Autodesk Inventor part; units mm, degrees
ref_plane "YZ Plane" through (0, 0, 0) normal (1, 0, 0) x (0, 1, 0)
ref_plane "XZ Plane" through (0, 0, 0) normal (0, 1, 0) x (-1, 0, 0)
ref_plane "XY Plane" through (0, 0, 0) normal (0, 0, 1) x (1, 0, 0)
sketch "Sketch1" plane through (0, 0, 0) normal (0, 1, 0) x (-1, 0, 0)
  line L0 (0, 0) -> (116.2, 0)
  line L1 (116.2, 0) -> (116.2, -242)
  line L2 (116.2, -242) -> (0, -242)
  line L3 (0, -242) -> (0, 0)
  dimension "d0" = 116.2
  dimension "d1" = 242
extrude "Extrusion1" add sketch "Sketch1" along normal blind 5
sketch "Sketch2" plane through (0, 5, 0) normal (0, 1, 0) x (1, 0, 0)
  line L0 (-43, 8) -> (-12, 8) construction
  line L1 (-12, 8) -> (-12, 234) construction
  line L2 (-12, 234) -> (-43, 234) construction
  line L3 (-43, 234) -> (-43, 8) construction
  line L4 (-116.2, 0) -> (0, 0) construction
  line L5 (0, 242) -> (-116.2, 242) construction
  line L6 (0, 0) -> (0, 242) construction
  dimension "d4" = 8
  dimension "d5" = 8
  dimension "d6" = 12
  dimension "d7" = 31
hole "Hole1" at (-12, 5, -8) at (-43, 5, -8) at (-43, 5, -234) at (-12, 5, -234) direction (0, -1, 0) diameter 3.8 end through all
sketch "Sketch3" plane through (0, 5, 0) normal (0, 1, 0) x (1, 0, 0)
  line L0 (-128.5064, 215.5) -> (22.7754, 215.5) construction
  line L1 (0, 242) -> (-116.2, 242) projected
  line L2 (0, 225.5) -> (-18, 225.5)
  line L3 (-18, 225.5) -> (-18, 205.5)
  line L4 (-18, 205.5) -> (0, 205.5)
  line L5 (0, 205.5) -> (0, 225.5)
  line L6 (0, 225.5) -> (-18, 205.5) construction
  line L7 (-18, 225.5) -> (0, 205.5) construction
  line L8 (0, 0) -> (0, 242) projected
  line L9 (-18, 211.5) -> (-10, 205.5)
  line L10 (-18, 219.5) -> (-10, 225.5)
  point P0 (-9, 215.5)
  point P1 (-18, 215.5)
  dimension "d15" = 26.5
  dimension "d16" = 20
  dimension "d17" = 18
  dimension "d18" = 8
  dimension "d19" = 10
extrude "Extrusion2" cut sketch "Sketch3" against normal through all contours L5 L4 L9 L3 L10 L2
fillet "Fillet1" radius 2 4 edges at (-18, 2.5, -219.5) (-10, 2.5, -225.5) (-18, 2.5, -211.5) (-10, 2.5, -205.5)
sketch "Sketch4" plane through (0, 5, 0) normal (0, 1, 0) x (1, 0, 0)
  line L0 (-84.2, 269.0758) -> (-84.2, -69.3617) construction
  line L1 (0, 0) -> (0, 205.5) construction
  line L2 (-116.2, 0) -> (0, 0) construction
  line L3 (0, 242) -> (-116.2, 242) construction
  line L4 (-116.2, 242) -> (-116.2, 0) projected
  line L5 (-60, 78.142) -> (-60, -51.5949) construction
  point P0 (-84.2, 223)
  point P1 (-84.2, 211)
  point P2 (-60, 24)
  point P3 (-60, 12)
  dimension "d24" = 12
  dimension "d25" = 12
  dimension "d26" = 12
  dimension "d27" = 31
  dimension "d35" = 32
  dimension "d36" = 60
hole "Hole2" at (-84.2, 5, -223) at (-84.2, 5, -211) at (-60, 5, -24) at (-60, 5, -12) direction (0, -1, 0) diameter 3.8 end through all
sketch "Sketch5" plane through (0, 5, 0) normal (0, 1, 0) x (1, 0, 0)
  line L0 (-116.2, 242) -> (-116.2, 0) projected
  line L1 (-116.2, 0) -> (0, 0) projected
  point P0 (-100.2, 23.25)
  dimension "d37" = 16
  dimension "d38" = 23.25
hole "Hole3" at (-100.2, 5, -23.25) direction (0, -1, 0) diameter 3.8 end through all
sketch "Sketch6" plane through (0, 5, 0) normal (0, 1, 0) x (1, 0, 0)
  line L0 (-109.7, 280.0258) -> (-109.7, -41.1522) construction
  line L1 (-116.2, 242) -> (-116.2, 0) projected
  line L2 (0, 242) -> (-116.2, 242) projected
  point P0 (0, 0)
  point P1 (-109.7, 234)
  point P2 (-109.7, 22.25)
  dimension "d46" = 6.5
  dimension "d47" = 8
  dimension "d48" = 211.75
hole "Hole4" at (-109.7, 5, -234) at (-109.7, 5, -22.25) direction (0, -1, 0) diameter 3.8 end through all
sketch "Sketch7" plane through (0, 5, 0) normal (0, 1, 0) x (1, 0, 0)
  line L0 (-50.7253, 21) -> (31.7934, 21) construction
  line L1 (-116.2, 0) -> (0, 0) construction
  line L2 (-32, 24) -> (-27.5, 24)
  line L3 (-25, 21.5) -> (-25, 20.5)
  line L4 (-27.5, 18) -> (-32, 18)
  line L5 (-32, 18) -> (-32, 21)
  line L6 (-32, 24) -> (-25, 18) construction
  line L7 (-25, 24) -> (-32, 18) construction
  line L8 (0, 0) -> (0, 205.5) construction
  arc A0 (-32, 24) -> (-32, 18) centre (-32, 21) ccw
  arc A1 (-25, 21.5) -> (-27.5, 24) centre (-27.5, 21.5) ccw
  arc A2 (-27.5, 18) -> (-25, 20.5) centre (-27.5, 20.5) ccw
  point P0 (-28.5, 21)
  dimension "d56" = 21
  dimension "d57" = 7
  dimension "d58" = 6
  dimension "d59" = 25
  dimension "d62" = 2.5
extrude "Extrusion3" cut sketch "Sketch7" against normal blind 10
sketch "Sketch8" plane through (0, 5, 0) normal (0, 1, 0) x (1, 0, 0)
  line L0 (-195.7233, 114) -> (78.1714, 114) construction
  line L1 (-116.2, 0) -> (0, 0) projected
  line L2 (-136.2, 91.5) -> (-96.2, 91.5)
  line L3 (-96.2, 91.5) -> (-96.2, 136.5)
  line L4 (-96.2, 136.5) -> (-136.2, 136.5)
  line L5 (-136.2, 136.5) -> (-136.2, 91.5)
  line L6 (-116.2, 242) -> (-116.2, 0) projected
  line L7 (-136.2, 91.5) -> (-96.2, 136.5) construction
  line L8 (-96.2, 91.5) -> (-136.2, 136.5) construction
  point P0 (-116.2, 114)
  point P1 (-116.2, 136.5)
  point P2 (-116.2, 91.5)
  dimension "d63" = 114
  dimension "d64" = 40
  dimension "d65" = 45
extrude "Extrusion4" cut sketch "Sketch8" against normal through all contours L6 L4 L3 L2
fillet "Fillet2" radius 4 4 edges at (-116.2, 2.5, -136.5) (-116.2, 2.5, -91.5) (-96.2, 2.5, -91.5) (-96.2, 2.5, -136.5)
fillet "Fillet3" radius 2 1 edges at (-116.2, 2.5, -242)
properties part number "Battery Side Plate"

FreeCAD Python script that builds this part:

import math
import FreeCAD as App
import Part
import Sketcher

V = App.Vector
Q = App.Units.Quantity


def edges_at(feature, points):
    """Names of the edges that pass closest to the given points."""
    edges = feature.Shape.Edges
    near = lambda p: min(range(len(edges)), key=lambda i: edges[i].distToShape(Part.Vertex(*p))[0])
    return sorted({f"Edge{near(p) + 1}" for p in points})

doc = App.newDocument("Part")
body = doc.addObject("PartDesign::Body", "Body")

# Sketch on XZ plane
sketch1 = doc.addObject("Sketcher::SketchObject", "Sketch")
body.addObject(sketch1)
sketch1.AttachmentSupport = (doc.XZ_Plane, [""])
sketch1.MapMode = "FlatFace"
sketch1.addGeometry(Part.LineSegment(V(-116, 0, 0), V(0, 0, 0)), False)
sketch1.addGeometry(Part.LineSegment(V(0, 0, 0), V(0, -242, 0)), False)
sketch1.addGeometry(Part.LineSegment(V(0, -242, 0), V(-116, -242, 0)), False)
sketch1.addGeometry(Part.LineSegment(V(-116, -242, 0), V(-116, 0, 0)), False)
sketch1.addConstraint(Sketcher.Constraint("Coincident", 0, 2, 1, 1))
sketch1.addConstraint(Sketcher.Constraint("Coincident", 1, 2, 2, 1))
sketch1.addConstraint(Sketcher.Constraint("Coincident", 2, 2, 3, 1))
sketch1.addConstraint(Sketcher.Constraint("Coincident", 3, 2, 0, 1))
sketch1.addConstraint(Sketcher.Constraint("Horizontal", 0))
sketch1.addConstraint(Sketcher.Constraint("Vertical", 1))
sketch1.addConstraint(Sketcher.Constraint("Horizontal", 2))
sketch1.addConstraint(Sketcher.Constraint("Vertical", 3))
sketch1.addConstraint(Sketcher.Constraint("Coincident", 0, 2, -1, 1))
sketch1.addConstraint(Sketcher.Constraint("DistanceY", 1, 2, 1, 1, Q("242 mm")))
sketch1.addConstraint(Sketcher.Constraint("DistanceX", 0, 1, 0, 2, Q("116.2 mm")))
pad1 = doc.addObject("PartDesign::Pad", "Pad")
body.addObject(pad1)
pad1.Profile = sketch1
pad1.Length = 5
pad1.Reversed = True

# Sketch on XZ plane
sketch2 = doc.addObject("Sketcher::SketchObject", "Sketch001")
body.addObject(sketch2)
sketch2.AttachmentSupport = (doc.XZ_Plane, [""])
sketch2.MapMode = "FlatFace"
sketch2.AttachmentOffset = App.Placement(V(0, 0, -5), App.Rotation())
sketch2.addGeometry(Part.Circle(V(-12, -8, 0), V(0, 0, 1), 1.9), False)
sketch2.addGeometry(Part.Circle(V(-43, -8, 0), V(0, 0, 1), 1.9), False)
sketch2.addGeometry(Part.Circle(V(-43, -234, 0), V(0, 0, 1), 1.9), False)
sketch2.addGeometry(Part.Circle(V(-12, -234, 0), V(0, 0, 1), 1.9), False)
sketch2.addConstraint(Sketcher.Constraint("Equal", 0, 1))
sketch2.addConstraint(Sketcher.Constraint("Equal", 1, 2))
sketch2.addConstraint(Sketcher.Constraint("Equal", 2, 3))
sketch2.addConstraint(Sketcher.Constraint("Horizontal", 0, 3, 1, 3))
sketch2.addConstraint(Sketcher.Constraint("Horizontal", 2, 3, 3, 3))
sketch2.addConstraint(Sketcher.Constraint("Vertical", 1, 3, 2, 3))
sketch2.addConstraint(Sketcher.Constraint("Vertical", 0, 3, 3, 3))
sketch2.addConstraint(Sketcher.Constraint("Diameter", 0, Q("3.8 mm")))
sketch2.addConstraint(Sketcher.Constraint("DistanceX", 0, 3, -1, 1, Q("12 mm")))
sketch2.addConstraint(Sketcher.Constraint("DistanceY", 0, 3, -1, 1, Q("8 mm")))
sketch2.addConstraint(Sketcher.Constraint("DistanceX", 1, 3, -1, 1, Q("43 mm")))
sketch2.addConstraint(Sketcher.Constraint("DistanceY", 2, 3, -1, 1, Q("234 mm")))
doc.recompute()
hole = doc.addObject("PartDesign::Hole", "Hole")
body.addObject(hole)
hole.Profile = sketch2
hole.ThreadType = "None"
hole.Diameter = 3.8
hole.DepthType = "ThroughAll"
hole.Reversed = True

# Sketch on XZ plane
sketch3 = doc.addObject("Sketcher::SketchObject", "Sketch002")
body.addObject(sketch3)
sketch3.AttachmentSupport = (doc.XZ_Plane, [""])
sketch3.MapMode = "FlatFace"
sketch3.AttachmentOffset = App.Placement(V(0, 0, -5), App.Rotation())
sketch3.addGeometry(Part.LineSegment(V(0, -206, 0), V(0, -226, 0)), False)
sketch3.addGeometry(Part.LineSegment(V(0, -226, 0), V(-10, -226, 0)), False)
sketch3.addGeometry(Part.LineSegment(V(-10, -226, 0), V(-18, -220, 0)), False)
sketch3.addGeometry(Part.LineSegment(V(-18, -220, 0), V(-18, -212, 0)), False)
sketch3.addGeometry(Part.LineSegment(V(-18, -212, 0), V(-10, -206, 0)), False)
sketch3.addGeometry(Part.LineSegment(V(-10, -206, 0), V(0, -206, 0)), False)
sketch3.addConstraint(Sketcher.Constraint("Coincident", 0, 2, 1, 1))
sketch3.addConstraint(Sketcher.Constraint("Coincident", 1, 2, 2, 1))
sketch3.addConstraint(Sketcher.Constraint("Coincident", 2, 2, 3, 1))
sketch3.addConstraint(Sketcher.Constraint("Coincident", 3, 2, 4, 1))
sketch3.addConstraint(Sketcher.Constraint("Coincident", 4, 2, 5, 1))
sketch3.addConstraint(Sketcher.Constraint("Coincident", 5, 2, 0, 1))
sketch3.addConstraint(Sketcher.Constraint("Vertical", 0))
sketch3.addConstraint(Sketcher.Constraint("Horizontal", 1))
sketch3.addConstraint(Sketcher.Constraint("Vertical", 3))
sketch3.addConstraint(Sketcher.Constraint("Horizontal", 5))
sketch3.addConstraint(Sketcher.Constraint("PointOnObject", 0, 2, -2))
sketch3.addConstraint(Sketcher.Constraint("Vertical", 1, 2, 4, 2))
sketch3.addConstraint(Sketcher.Constraint("Equal", 2, 4))
sketch3.addConstraint(Sketcher.Constraint("DistanceX", 1, 2, 1, 1, Q("10 mm")))
sketch3.addConstraint(Sketcher.Constraint("DistanceY", 0, 2, 0, 1, Q("20 mm")))
sketch3.addConstraint(Sketcher.Constraint("DistanceY", 3, 1, 3, 2, Q("8 mm")))
sketch3.addConstraint(Sketcher.Constraint("Distance", 2, Q("10 mm")))
sketch3.addConstraint(Sketcher.Constraint("DistanceY", 0, 2, -1, 1, Q("225.5 mm")))
pocket1 = doc.addObject("PartDesign::Pocket", "Pocket")
body.addObject(pocket1)
pocket1.Profile = sketch3
pocket1.Type = "ThroughAll"
pocket1.Reversed = True
doc.recompute()

fillet = doc.addObject("PartDesign::Fillet", "Fillet")
body.addObject(fillet)
fillet.Base = (pocket1, edges_at(pocket1, [
    (-18, 2.5, -219.5),
    (-10, 2.5, -225.5),
    (-18, 2.5, -211.5),
    (-10, 2.5, -205.5),
]))
fillet.Radius = 2

# Sketch on XZ plane
sketch4 = doc.addObject("Sketcher::SketchObject", "Sketch003")
body.addObject(sketch4)
sketch4.AttachmentSupport = (doc.XZ_Plane, [""])
sketch4.MapMode = "FlatFace"
sketch4.AttachmentOffset = App.Placement(V(0, 0, -5), App.Rotation())
sketch4.addGeometry(Part.Circle(V(-84.2, -223, 0), V(0, 0, 1), 1.9), False)
sketch4.addGeometry(Part.Circle(V(-84.2, -211, 0), V(0, 0, 1), 1.9), False)
sketch4.addGeometry(Part.Circle(V(-60, -24, 0), V(0, 0, 1), 1.9), False)
sketch4.addGeometry(Part.Circle(V(-60, -12, 0), V(0, 0, 1), 1.9), False)
sketch4.addConstraint(Sketcher.Constraint("Equal", 0, 1))
sketch4.addConstraint(Sketcher.Constraint("Equal", 1, 2))
sketch4.addConstraint(Sketcher.Constraint("Equal", 2, 3))
sketch4.addConstraint(Sketcher.Constraint("Vertical", 0, 3, 1, 3))
sketch4.addConstraint(Sketcher.Constraint("Vertical", 2, 3, 3, 3))
sketch4.addConstraint(Sketcher.Constraint("Diameter", 0, Q("3.8 mm")))
sketch4.addConstraint(Sketcher.Constraint("DistanceY", 0, 3, -1, 1, Q("223 mm")))
sketch4.addConstraint(Sketcher.Constraint("DistanceY", 1, 3, -1, 1, Q("211 mm")))
sketch4.addConstraint(Sketcher.Constraint("DistanceX", 2, 3, -1, 1, Q("60 mm")))
sketch4.addConstraint(Sketcher.Constraint("DistanceY", 2, 3, -1, 1, Q("24 mm")))
sketch4.addConstraint(Sketcher.Constraint("DistanceY", 3, 3, -1, 1, Q("12 mm")))
sketch4.addConstraint(Sketcher.Constraint("DistanceX", 0, 3, -1, 1, Q("84.2 mm")))
doc.recompute()
hole2 = doc.addObject("PartDesign::Hole", "Hole001")
body.addObject(hole2)
hole2.Profile = sketch4
hole2.ThreadType = "None"
hole2.Diameter = 3.8
hole2.DepthType = "ThroughAll"
hole2.Reversed = True

# Sketch on XZ plane
sketch5 = doc.addObject("Sketcher::SketchObject", "Sketch004")
body.addObject(sketch5)
sketch5.AttachmentSupport = (doc.XZ_Plane, [""])
sketch5.MapMode = "FlatFace"
sketch5.AttachmentOffset = App.Placement(V(0, 0, -5), App.Rotation())
sketch5.addGeometry(Part.Circle(V(-100.2, -23.2, 0), V(0, 0, 1), 1.9), False)
sketch5.addConstraint(Sketcher.Constraint("Diameter", 0, Q("3.8 mm")))
sketch5.addConstraint(Sketcher.Constraint("DistanceX", 0, 3, -1, 1, Q("100.2 mm")))
sketch5.addConstraint(Sketcher.Constraint("DistanceY", 0, 3, -1, 1, Q("23.25 mm")))
doc.recompute()
hole3 = doc.addObject("PartDesign::Hole", "Hole002")
body.addObject(hole3)
hole3.Profile = sketch5
hole3.ThreadType = "None"
hole3.Diameter = 3.8
hole3.DepthType = "ThroughAll"
hole3.Reversed = True

# Sketch on XZ plane
sketch6 = doc.addObject("Sketcher::SketchObject", "Sketch005")
body.addObject(sketch6)
sketch6.AttachmentSupport = (doc.XZ_Plane, [""])
sketch6.MapMode = "FlatFace"
sketch6.AttachmentOffset = App.Placement(V(0, 0, -5), App.Rotation())
sketch6.addGeometry(Part.Circle(V(-109.7, -234, 0), V(0, 0, 1), 1.9), False)
sketch6.addGeometry(Part.Circle(V(-109.7, -22.2, 0), V(0, 0, 1), 1.9), False)
sketch6.addConstraint(Sketcher.Constraint("Equal", 0, 1))
sketch6.addConstraint(Sketcher.Constraint("Vertical", 0, 3, 1, 3))
sketch6.addConstraint(Sketcher.Constraint("Diameter", 0, Q("3.8 mm")))
sketch6.addConstraint(Sketcher.Constraint("DistanceY", 0, 3, -1, 1, Q("234 mm")))
sketch6.addConstraint(Sketcher.Constraint("DistanceX", 0, 3, -1, 1, Q("109.7 mm")))
sketch6.addConstraint(Sketcher.Constraint("DistanceY", 1, 3, -1, 1, Q("22.25 mm")))
doc.recompute()
hole4 = doc.addObject("PartDesign::Hole", "Hole003")
body.addObject(hole4)
hole4.Profile = sketch6
hole4.ThreadType = "None"
hole4.Diameter = 3.8
hole4.DepthType = "ThroughAll"
hole4.Reversed = True

# Sketch on XZ plane
sketch7 = doc.addObject("Sketcher::SketchObject", "Sketch006")
body.addObject(sketch7)
sketch7.AttachmentSupport = (doc.XZ_Plane, [""])
sketch7.MapMode = "FlatFace"
sketch7.AttachmentOffset = App.Placement(V(0, 0, -5), App.Rotation())
sketch7.addGeometry(Part.LineSegment(V(-27.5, -24, 0), V(-32, -24, 0)), False)
sketch7.addGeometry(Part.ArcOfCircle(Part.Circle(V(-32, -21, 0), V(0, 0, 1), 3), math.radians(90), math.radians(270)), False)
sketch7.addGeometry(Part.LineSegment(V(-32, -18, 0), V(-27.5, -18, 0)), False)
sketch7.addGeometry(Part.ArcOfCircle(Part.Circle(V(-27.5, -20.5, 0), V(0, 0, 1), 2.5), math.radians(0), math.radians(90)), False)
sketch7.addGeometry(Part.LineSegment(V(-25, -20.5, 0), V(-25, -21.5, 0)), False)
sketch7.addGeometry(Part.ArcOfCircle(Part.Circle(V(-27.5, -21.5, 0), V(0, 0, 1), 2.5), math.radians(-90), math.radians(0)), False)
sketch7.addConstraint(Sketcher.Constraint("Tangent", 0, 2, 1, 2))
sketch7.addConstraint(Sketcher.Constraint("Tangent", 1, 1, 2, 1))
sketch7.addConstraint(Sketcher.Constraint("Tangent", 2, 2, 3, 2))
sketch7.addConstraint(Sketcher.Constraint("Tangent", 3, 1, 4, 1))
sketch7.addConstraint(Sketcher.Constraint("Tangent", 4, 2, 5, 2))
sketch7.addConstraint(Sketcher.Constraint("Tangent", 5, 1, 0, 1))
sketch7.addConstraint(Sketcher.Constraint("Horizontal", 0))
sketch7.addConstraint(Sketcher.Constraint("Horizontal", 2))
sketch7.addConstraint(Sketcher.Constraint("Vertical", 4))
sketch7.addConstraint(Sketcher.Constraint("Equal", 3, 5))
sketch7.addConstraint(Sketcher.Constraint("Radius", 1, Q("3 mm")))
sketch7.addConstraint(Sketcher.Constraint("Radius", 3, Q("2.5 mm")))
sketch7.addConstraint(Sketcher.Constraint("DistanceY", 1, 3, -1, 1, Q("21 mm")))
sketch7.addConstraint(Sketcher.Constraint("DistanceX", 3, 1, -1, 1, Q("25 mm")))
sketch7.addConstraint(Sketcher.Constraint("DistanceX", 1, 3, 3, 1, Q("7 mm")))
pocket2 = doc.addObject("PartDesign::Pocket", "Pocket001")
body.addObject(pocket2)
pocket2.Profile = sketch7
pocket2.Length = 10
pocket2.Reversed = True

# Sketch on XZ plane
sketch8 = doc.addObject("Sketcher::SketchObject", "Sketch007")
body.addObject(sketch8)
sketch8.AttachmentSupport = (doc.XZ_Plane, [""])
sketch8.MapMode = "FlatFace"
sketch8.AttachmentOffset = App.Placement(V(0, 0, -5), App.Rotation())
sketch8.addGeometry(Part.LineSegment(V(-116, -136, 0), V(-116, -92, 0)), False)
sketch8.addGeometry(Part.LineSegment(V(-116, -92, 0), V(-96, -92, 0)), False)
sketch8.addGeometry(Part.LineSegment(V(-96, -92, 0), V(-96, -136, 0)), False)
sketch8.addGeometry(Part.LineSegment(V(-96, -136, 0), V(-116, -136, 0)), False)
sketch8.addConstraint(Sketcher.Constraint("Coincident", 0, 2, 1, 1))
sketch8.addConstraint(Sketcher.Constraint("Coincident", 1, 2, 2, 1))
sketch8.addConstraint(Sketcher.Constraint("Coincident", 2, 2, 3, 1))
sketch8.addConstraint(Sketcher.Constraint("Coincident", 3, 2, 0, 1))
sketch8.addConstraint(Sketcher.Constraint("Vertical", 0))
sketch8.addConstraint(Sketcher.Constraint("Horizontal", 1))
sketch8.addConstraint(Sketcher.Constraint("Vertical", 2))
sketch8.addConstraint(Sketcher.Constraint("Horizontal", 3))
sketch8.addConstraint(Sketcher.Constraint("DistanceY", 0, 1, 0, 2, Q("45 mm")))
sketch8.addConstraint(Sketcher.Constraint("DistanceX", 1, 1, 1, 2, Q("20 mm")))
sketch8.addConstraint(Sketcher.Constraint("DistanceX", 0, 2, -1, 1, Q("116.2 mm")))
sketch8.addConstraint(Sketcher.Constraint("DistanceY", 0, 2, -1, 1, Q("91.5 mm")))
pocket3 = doc.addObject("PartDesign::Pocket", "Pocket002")
body.addObject(pocket3)
pocket3.Profile = sketch8
pocket3.Type = "ThroughAll"
pocket3.Reversed = True
doc.recompute()

fillet2 = doc.addObject("PartDesign::Fillet", "Fillet001")
body.addObject(fillet2)
fillet2.Base = (pocket3, edges_at(pocket3, [
    (-116.2, 2.5, -136.5),
    (-116.2, 2.5, -91.5),
    (-96.2, 2.5, -91.5),
    (-96.2, 2.5, -136.5),
]))
fillet2.Radius = 4
doc.recompute()

fillet3 = doc.addObject("PartDesign::Fillet", "Fillet002")
body.addObject(fillet3)
fillet3.Base = (fillet2, edges_at(fillet2, [(-116.2, 2.5, -242)]))
fillet3.Radius = 2

doc.recompute()
